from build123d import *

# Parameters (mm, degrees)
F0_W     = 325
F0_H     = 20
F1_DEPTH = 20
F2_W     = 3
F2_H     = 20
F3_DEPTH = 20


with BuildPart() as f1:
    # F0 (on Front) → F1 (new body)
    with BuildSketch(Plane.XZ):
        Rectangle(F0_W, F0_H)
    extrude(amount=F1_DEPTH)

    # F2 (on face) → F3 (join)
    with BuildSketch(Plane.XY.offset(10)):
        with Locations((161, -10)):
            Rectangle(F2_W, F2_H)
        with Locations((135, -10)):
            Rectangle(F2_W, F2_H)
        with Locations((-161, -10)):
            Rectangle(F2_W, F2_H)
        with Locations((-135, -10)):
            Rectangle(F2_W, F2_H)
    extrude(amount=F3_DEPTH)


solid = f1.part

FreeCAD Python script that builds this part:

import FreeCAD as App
import Part
import Sketcher


def add_polygon(sketch, points):
    """Adds a closed chain of lines whose ends are joined by coincident constraints."""
    first, n = sketch.GeometryCount, len(points)
    for a, b in zip(points, points[1:] + points[:1]):
        sketch.addGeometry(Part.LineSegment(App.Vector(*a, 0), App.Vector(*b, 0)), False)
    for i in range(n):
        sketch.addConstraint(Sketcher.Constraint("Coincident", first + i, 2, first + (i + 1) % n, 1))

doc = App.newDocument("Part")
body = doc.addObject("PartDesign::Body", "Body")

# Sketch on XZ plane
sketch1 = body.newObject("Sketcher::SketchObject", "Sketch")
sketch1.AttachmentSupport = (doc.getObject("XZ_Plane"), [""])
sketch1.MapMode = "FlatFace"
add_polygon(sketch1, [(-162, 10), (-162, -10), (162, -10), (162, 10)])  # lines 0-3
sketch1.addConstraint([
    Sketcher.Constraint("Vertical", 0),
    Sketcher.Constraint("Horizontal", 1),
    Sketcher.Constraint("Vertical", 2),
    Sketcher.Constraint("Horizontal", 3),
    Sketcher.Constraint("Symmetric", 0, 2, 2, 2, -1, 1),
    Sketcher.Constraint("DistanceX", 1, 1, 1, 2, 325.0),
    Sketcher.Constraint("DistanceY", 0, 2, 0, 1, 20.0),
])
pad1 = body.newObject("PartDesign::Pad", "Pad")
pad1.Profile = sketch1
pad1.Length = 20

# Sketch on XY plane
sketch2 = body.newObject("Sketcher::SketchObject", "Sketch001")
sketch2.AttachmentSupport = (doc.getObject("XY_Plane"), [""])
sketch2.MapMode = "FlatFace"
sketch2.AttachmentOffset = App.Placement(App.Vector(0, 0, 10), App.Rotation())
add_polygon(sketch2, [(159.5, 0), (159.5, -20), (162.5, -20), (162.5, 0)])  # lines 0-3
add_polygon(sketch2, [(133.5, 0), (133.5, -20), (136.5, -20), (136.5, 0)])  # lines 4-7
add_polygon(sketch2, [(-162.5, 0), (-162.5, -20), (-159.5, -20), (-159.5, 0)])  # lines 8-11
add_polygon(sketch2, [(-136.5, 0), (-136.5, -20), (-133.5, -20), (-133.5, 0)])  # lines 12-15
sketch2.addConstraint([
    Sketcher.Constraint("Vertical", 0),
    Sketcher.Constraint("Horizontal", 1),
    Sketcher.Constraint("Vertical", 2),
    Sketcher.Constraint("Horizontal", 3),
    Sketcher.Constraint("Vertical", 4),
    Sketcher.Constraint("Horizontal", 5),
    Sketcher.Constraint("Vertical", 6),
    Sketcher.Constraint("Horizontal", 7),
    Sketcher.Constraint("Vertical", 8),
    Sketcher.Constraint("Horizontal", 9),
    Sketcher.Constraint("Vertical", 10),
    Sketcher.Constraint("Horizontal", 11),
    Sketcher.Constraint("Vertical", 12),
    Sketcher.Constraint("Horizontal", 13),
    Sketcher.Constraint("Vertical", 14),
    Sketcher.Constraint("Horizontal", 15),
    Sketcher.Constraint("Symmetric", 3, 2, 10, 2, -1, 1),
    Sketcher.Constraint("Symmetric", 7, 2, 14, 2, -1, 1),
    Sketcher.Constraint("Symmetric", 1, 2, 8, 2, -2),
    Sketcher.Constraint("Symmetric", 5, 2, 12, 2, -2),
    Sketcher.Constraint("PointOnObject", 2, 2, -1),
    Sketcher.Constraint("PointOnObject", 6, 2, -1),
    Sketcher.Constraint("Horizontal", 1, 2, 4, 2),
    Sketcher.Constraint("Equal", 3, 5),
    Sketcher.Constraint("DistanceX", 1, 1, 1, 2, 3.0),
    Sketcher.Constraint("DistanceY", 0, 2, 0, 1, 20.0),
    Sketcher.Constraint("DistanceX", 4, 2, 0, 2, 26.0),
    Sketcher.Constraint("DistanceX", 8, 2, 4, 2, 296.0),
])
pad2 = body.newObject("PartDesign::Pad", "Pad001")
pad2.Profile = sketch2
pad2.Length = 20

doc.recompute()
